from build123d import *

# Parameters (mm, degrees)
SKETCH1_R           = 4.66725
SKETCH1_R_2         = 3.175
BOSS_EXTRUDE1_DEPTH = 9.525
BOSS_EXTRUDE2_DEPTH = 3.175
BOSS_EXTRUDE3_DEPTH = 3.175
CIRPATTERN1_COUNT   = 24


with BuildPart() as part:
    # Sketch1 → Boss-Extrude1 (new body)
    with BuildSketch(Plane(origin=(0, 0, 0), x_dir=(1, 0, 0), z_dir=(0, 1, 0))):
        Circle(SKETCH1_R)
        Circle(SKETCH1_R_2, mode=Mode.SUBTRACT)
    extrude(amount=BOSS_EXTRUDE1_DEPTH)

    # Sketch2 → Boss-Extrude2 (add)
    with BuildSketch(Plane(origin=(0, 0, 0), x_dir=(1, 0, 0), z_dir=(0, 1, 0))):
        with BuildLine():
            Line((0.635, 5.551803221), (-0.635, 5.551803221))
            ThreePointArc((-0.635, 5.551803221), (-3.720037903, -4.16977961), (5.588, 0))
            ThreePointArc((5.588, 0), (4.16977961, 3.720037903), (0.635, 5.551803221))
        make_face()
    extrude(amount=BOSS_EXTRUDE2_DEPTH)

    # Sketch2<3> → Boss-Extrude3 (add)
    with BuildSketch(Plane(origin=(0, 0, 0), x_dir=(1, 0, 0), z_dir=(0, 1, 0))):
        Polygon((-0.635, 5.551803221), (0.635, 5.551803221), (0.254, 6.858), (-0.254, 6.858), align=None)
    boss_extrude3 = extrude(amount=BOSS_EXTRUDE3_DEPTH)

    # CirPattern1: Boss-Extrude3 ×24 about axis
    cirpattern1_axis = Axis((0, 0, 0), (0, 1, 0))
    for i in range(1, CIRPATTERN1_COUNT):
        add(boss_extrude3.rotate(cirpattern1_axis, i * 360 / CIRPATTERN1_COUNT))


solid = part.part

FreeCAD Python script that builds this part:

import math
import FreeCAD as App
import Part
import Sketcher
Q = App.Units.Quantity

doc = App.newDocument("Part")
body = doc.addObject("PartDesign::Body", "Body")

sketch1 = doc.addObject("Sketcher::SketchObject", "Sketch")
body.addObject(sketch1)
sketch1.AttachmentSupport = (doc.XZ_Plane, [""])
sketch1.MapMode = "FlatFace"
sketch1.addGeometry(Part.Circle(App.Vector(0, 0, 0), App.Vector(0, 0, 1), 4.7), False)
sketch1.addGeometry(Part.Circle(App.Vector(0, 0, 0), App.Vector(0, 0, 1), 3.2), False)
sketch1.addConstraint(Sketcher.Constraint("Coincident", 0, 3, -1, 1))
sketch1.addConstraint(Sketcher.Constraint("Coincident", 1, 3, -1, 1))
sketch1.addConstraint(Sketcher.Constraint("Diameter", 1, Q("0.25 in")))
sketch1.addConstraint(Sketcher.Constraint("Diameter", 0, Q("0.3675 in")))
pad1 = doc.addObject("PartDesign::Pad", "Pad")
body.addObject(pad1)
pad1.Profile = sketch1
pad1.Length = Q("0.375 in")
pad1.Reversed = True

sketch2 = doc.addObject("Sketcher::SketchObject", "Sketch001")
body.addObject(sketch2)
sketch2.AttachmentSupport = (doc.XZ_Plane, [""])
sketch2.MapMode = "FlatFace"
sketch2.addGeometry(Part.LineSegment(App.Vector(0.6, -5.6, 0), App.Vector(-0.6, -5.6, 0)), False)
sketch2.addGeometry(Part.ArcOfCircle(Part.Circle(App.Vector(0, 0, 0), App.Vector(0, 0, 1), 5.6), math.radians(0), math.radians(263)), False)
sketch2.addGeometry(Part.ArcOfCircle(Part.Circle(App.Vector(0, 0, 0), App.Vector(0, 0, 1), 5.6), math.radians(-83), math.radians(0)), False)
sketch2.addConstraint(Sketcher.Constraint("Coincident", 0, 2, 1, 2))
sketch2.addConstraint(Sketcher.Constraint("Tangent", 1, 1, 2, 2))
sketch2.addConstraint(Sketcher.Constraint("Coincident", 2, 1, 0, 1))
sketch2.addConstraint(Sketcher.Constraint("Horizontal", 0))
sketch2.addConstraint(Sketcher.Constraint("Coincident", 1, 3, -1, 1))
sketch2.addConstraint(Sketcher.Constraint("Equal", 1, 2))
sketch2.addConstraint(Sketcher.Constraint("PointOnObject", 1, 1, -1))
sketch2.addConstraint(Sketcher.Constraint("Radius", 1, Q("0.22 in")))
sketch2.addConstraint(Sketcher.Constraint("DistanceX", 0, 2, 0, 1, Q("0.05 in")))
pad2 = doc.addObject("PartDesign::Pad", "Pad001")
body.addObject(pad2)
pad2.Profile = sketch2
pad2.Length = Q("0.125 in")
pad2.Reversed = True

sketch3 = doc.addObject("Sketcher::SketchObject", "Sketch002")
body.addObject(sketch3)
sketch3.AttachmentSupport = (doc.XZ_Plane, [""])
sketch3.MapMode = "FlatFace"
sketch3.addGeometry(Part.LineSegment(App.Vector(-0.6, -5.6, 0), App.Vector(0.6, -5.6, 0)), False)
sketch3.addGeometry(Part.LineSegment(App.Vector(0.6, -5.6, 0), App.Vector(0.3, -6.9, 0)), False)
sketch3.addGeometry(Part.LineSegment(App.Vector(0.3, -6.9, 0), App.Vector(-0.3, -6.9, 0)), False)
sketch3.addGeometry(Part.LineSegment(App.Vector(-0.3, -6.9, 0), App.Vector(-0.6, -5.6, 0)), False)
sketch3.addConstraint(Sketcher.Constraint("Coincident", 0, 2, 1, 1))
sketch3.addConstraint(Sketcher.Constraint("Coincident", 1, 2, 2, 1))
sketch3.addConstraint(Sketcher.Constraint("Coincident", 2, 2, 3, 1))
sketch3.addConstraint(Sketcher.Constraint("Coincident", 3, 2, 0, 1))
sketch3.addConstraint(Sketcher.Constraint("Horizontal", 0))
sketch3.addConstraint(Sketcher.Constraint("Horizontal", 2))
sketch3.addConstraint(Sketcher.Constraint("Equal", 1, 3))
sketch3.addConstraint(Sketcher.Constraint("DistanceX", 0, 1, 0, 2, Q("0.05 in")))
sketch3.addConstraint(Sketcher.Constraint("DistanceX", 2, 2, 2, 1, Q("0.02 in")))
sketch3.addConstraint(Sketcher.Constraint("DistanceX", -1, 1, 1, 2, Q("0.01 in")))
sketch3.addConstraint(Sketcher.Constraint("DistanceY", 1, 2, -1, 1, Q("0.27 in")))
sketch3.addConstraint(Sketcher.Constraint("Distance", 1, Q("1.360629 mm")))
pad3 = doc.addObject("PartDesign::Pad", "Pad002")
body.addObject(pad3)
pad3.Profile = sketch3
pad3.Length = Q("0.125 in")
pad3.Reversed = True
doc.recompute()

polarpattern = doc.addObject("PartDesign::PolarPattern", "PolarPattern")
body.addObject(polarpattern)
polarpattern.Originals = [pad3]
polarpattern.Axis = (doc.Y_Axis, [""])
polarpattern.Angle = 360
polarpattern.Occurrences = 24
body.Tip = polarpattern

doc.recompute()
